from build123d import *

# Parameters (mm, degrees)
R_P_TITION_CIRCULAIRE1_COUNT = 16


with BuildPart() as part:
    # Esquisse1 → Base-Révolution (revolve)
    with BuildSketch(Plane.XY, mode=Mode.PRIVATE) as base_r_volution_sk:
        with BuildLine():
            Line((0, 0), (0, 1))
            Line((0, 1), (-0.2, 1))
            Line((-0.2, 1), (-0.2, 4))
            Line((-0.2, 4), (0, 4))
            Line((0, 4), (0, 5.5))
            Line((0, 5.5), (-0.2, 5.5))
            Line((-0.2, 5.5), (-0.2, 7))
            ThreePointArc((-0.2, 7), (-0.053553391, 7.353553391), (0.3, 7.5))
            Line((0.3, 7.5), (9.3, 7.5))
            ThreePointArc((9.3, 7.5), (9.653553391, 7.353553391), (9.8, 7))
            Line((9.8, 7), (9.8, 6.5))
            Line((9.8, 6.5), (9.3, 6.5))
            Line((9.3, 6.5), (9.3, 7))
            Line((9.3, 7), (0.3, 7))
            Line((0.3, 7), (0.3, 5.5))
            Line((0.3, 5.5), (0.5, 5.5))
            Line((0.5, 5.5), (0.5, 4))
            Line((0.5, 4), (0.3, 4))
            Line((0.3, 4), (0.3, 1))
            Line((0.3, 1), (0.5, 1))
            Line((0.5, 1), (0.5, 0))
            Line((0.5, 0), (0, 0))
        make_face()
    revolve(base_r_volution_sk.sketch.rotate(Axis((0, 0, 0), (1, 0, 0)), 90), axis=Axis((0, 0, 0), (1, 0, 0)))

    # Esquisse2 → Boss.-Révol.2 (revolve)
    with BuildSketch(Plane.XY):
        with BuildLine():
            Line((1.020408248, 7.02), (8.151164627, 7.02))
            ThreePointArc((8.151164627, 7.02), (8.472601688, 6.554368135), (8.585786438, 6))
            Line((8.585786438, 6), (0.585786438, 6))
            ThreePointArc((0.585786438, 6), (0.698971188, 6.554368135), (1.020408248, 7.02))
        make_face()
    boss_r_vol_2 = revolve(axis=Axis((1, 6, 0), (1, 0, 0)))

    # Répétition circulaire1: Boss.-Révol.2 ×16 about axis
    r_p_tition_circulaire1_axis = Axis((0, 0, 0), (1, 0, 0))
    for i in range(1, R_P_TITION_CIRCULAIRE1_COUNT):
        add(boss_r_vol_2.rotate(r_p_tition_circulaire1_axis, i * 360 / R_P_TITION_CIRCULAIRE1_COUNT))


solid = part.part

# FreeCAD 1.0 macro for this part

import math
import FreeCAD as App
import Part
import Sketcher
Q = App.Units.Quantity

doc = App.newDocument("Part")
body = doc.addObject("PartDesign::Body", "Body")

# Sketch on XY plane
sketch1 = body.newObject("Sketcher::SketchObject", "Sketch")
sketch1.AttachmentSupport = (doc.getObject("XY_Plane"), [""])
sketch1.MapMode = "FlatFace"
sketch1.addGeometry(Part.LineSegment(App.Vector(0, 1, 0), App.Vector(0, 0, 0)), False)
sketch1.addGeometry(Part.LineSegment(App.Vector(0, 0, 0), App.Vector(0.5, 0, 0)), False)
sketch1.addGeometry(Part.LineSegment(App.Vector(0.5, 0, 0), App.Vector(0.5, 1, 0)), False)
sketch1.addGeometry(Part.LineSegment(App.Vector(0.5, 1, 0), App.Vector(0.3, 1, 0)), False)
sketch1.addGeometry(Part.LineSegment(App.Vector(0.3, 1, 0), App.Vector(0.3, 4, 0)), False)
sketch1.addGeometry(Part.LineSegment(App.Vector(0.3, 4, 0), App.Vector(0.5, 4, 0)), False)
sketch1.addGeometry(Part.LineSegment(App.Vector(0.5, 4, 0), App.Vector(0.5, 5.5, 0)), False)
sketch1.addGeometry(Part.LineSegment(App.Vector(0.5, 5.5, 0), App.Vector(0.3, 5.5, 0)), False)
sketch1.addGeometry(Part.LineSegment(App.Vector(0.3, 5.5, 0), App.Vector(0.3, 7, 0)), False)
sketch1.addGeometry(Part.LineSegment(App.Vector(0.3, 7, 0), App.Vector(9.3, 7, 0)), False)
sketch1.addGeometry(Part.LineSegment(App.Vector(9.3, 7, 0), App.Vector(9.3, 6.5, 0)), False)
sketch1.addGeometry(Part.LineSegment(App.Vector(9.3, 6.5, 0), App.Vector(9.8, 6.5, 0)), False)
sketch1.addGeometry(Part.LineSegment(App.Vector(9.8, 6.5, 0), App.Vector(9.8, 7, 0)), False)
sketch1.addGeometry(Part.ArcOfCircle(Part.Circle(App.Vector(9.3, 7, 0), App.Vector(0, 0, 1), 0.5), math.radians(0), math.radians(90)), False)
sketch1.addGeometry(Part.LineSegment(App.Vector(9.3, 7.5, 0), App.Vector(0.3, 7.5, 0)), False)
sketch1.addGeometry(Part.ArcOfCircle(Part.Circle(App.Vector(0.3, 7, 0), App.Vector(0, 0, 1), 0.5), math.radians(90), math.radians(180)), False)
sketch1.addGeometry(Part.LineSegment(App.Vector(-0.2, 7, 0), App.Vector(-0.2, 5.5, 0)), False)
sketch1.addGeometry(Part.LineSegment(App.Vector(-0.2, 5.5, 0), App.Vector(0, 5.5, 0)), False)
sketch1.addGeometry(Part.LineSegment(App.Vector(0, 5.5, 0), App.Vector(0, 4, 0)), False)
sketch1.addGeometry(Part.LineSegment(App.Vector(0, 4, 0), App.Vector(-0.2, 4, 0)), False)
sketch1.addGeometry(Part.LineSegment(App.Vector(-0.2, 4, 0), App.Vector(-0.2, 1, 0)), False)
sketch1.addGeometry(Part.LineSegment(App.Vector(-0.2, 1, 0), App.Vector(0, 1, 0)), False)
sketch1.addConstraint(Sketcher.Constraint("Coincident", 0, 2, 1, 1))
sketch1.addConstraint(Sketcher.Constraint("Coincident", 1, 2, 2, 1))
sketch1.addConstraint(Sketcher.Constraint("Coincident", 2, 2, 3, 1))
sketch1.addConstraint(Sketcher.Constraint("Coincident", 3, 2, 4, 1))
sketch1.addConstraint(Sketcher.Constraint("Coincident", 4, 2, 5, 1))
sketch1.addConstraint(Sketcher.Constraint("Coincident", 5, 2, 6, 1))
sketch1.addConstraint(Sketcher.Constraint("Coincident", 6, 2, 7, 1))
sketch1.addConstraint(Sketcher.Constraint("Coincident", 7, 2, 8, 1))
sketch1.addConstraint(Sketcher.Constraint("Coincident", 8, 2, 9, 1))
sketch1.addConstraint(Sketcher.Constraint("Coincident", 9, 2, 10, 1))
sketch1.addConstraint(Sketcher.Constraint("Coincident", 10, 2, 11, 1))
sketch1.addConstraint(Sketcher.Constraint("Coincident", 11, 2, 12, 1))
sketch1.addConstraint(Sketcher.Constraint("Tangent", 12, 2, 13, 1))
sketch1.addConstraint(Sketcher.Constraint("Tangent", 13, 2, 14, 1))
sketch1.addConstraint(Sketcher.Constraint("Tangent", 14, 2, 15, 1))
sketch1.addConstraint(Sketcher.Constraint("Tangent", 15, 2, 16, 1))
sketch1.addConstraint(Sketcher.Constraint("Coincident", 16, 2, 17, 1))
sketch1.addConstraint(Sketcher.Constraint("Coincident", 17, 2, 18, 1))
sketch1.addConstraint(Sketcher.Constraint("Coincident", 18, 2, 19, 1))
sketch1.addConstraint(Sketcher.Constraint("Coincident", 19, 2, 20, 1))
sketch1.addConstraint(Sketcher.Constraint("Coincident", 20, 2, 21, 1))
sketch1.addConstraint(Sketcher.Constraint("Coincident", 21, 2, 0, 1))
sketch1.addConstraint(Sketcher.Constraint("Vertical", 0))
sketch1.addConstraint(Sketcher.Constraint("Horizontal", 1))
sketch1.addConstraint(Sketcher.Constraint("Vertical", 2))
sketch1.addConstraint(Sketcher.Constraint("Horizontal", 3))
sketch1.addConstraint(Sketcher.Constraint("Vertical", 4))
sketch1.addConstraint(Sketcher.Constraint("Horizontal", 5))
sketch1.addConstraint(Sketcher.Constraint("Vertical", 6))
sketch1.addConstraint(Sketcher.Constraint("Horizontal", 7))
sketch1.addConstraint(Sketcher.Constraint("Vertical", 8))
sketch1.addConstraint(Sketcher.Constraint("Horizontal", 9))
sketch1.addConstraint(Sketcher.Constraint("Vertical", 10))
sketch1.addConstraint(Sketcher.Constraint("Horizontal", 11))
sketch1.addConstraint(Sketcher.Constraint("Vertical", 12))
sketch1.addConstraint(Sketcher.Constraint("Horizontal", 14))
sketch1.addConstraint(Sketcher.Constraint("Vertical", 16))
sketch1.addConstraint(Sketcher.Constraint("Horizontal", 17))
sketch1.addConstraint(Sketcher.Constraint("Vertical", 18))
sketch1.addConstraint(Sketcher.Constraint("Horizontal", 19))
sketch1.addConstraint(Sketcher.Constraint("Vertical", 20))
sketch1.addConstraint(Sketcher.Constraint("Horizontal", 21))
sketch1.addConstraint(Sketcher.Constraint("Coincident", 0, 2, -1, 1))
sketch1.addConstraint(Sketcher.Constraint("Coincident", 8, 2, 15, 3))
sketch1.addConstraint(Sketcher.Constraint("Coincident", 9, 2, 13, 3))
sketch1.addConstraint(Sketcher.Constraint("PointOnObject", 17, 2, -2))
sketch1.addConstraint(Sketcher.Constraint("Horizontal", 7, 2, 16, 2))
sketch1.addConstraint(Sketcher.Constraint("Horizontal", 5, 2, 18, 2))
sketch1.addConstraint(Sketcher.Constraint("Horizontal", 3, 2, 20, 2))
sketch1.addConstraint(Sketcher.Constraint("Vertical", 15, 3, 3, 2))
sketch1.addConstraint(Sketcher.Constraint("Vertical", 2, 2, 5, 2))
sketch1.addConstraint(Sketcher.Constraint("Vertical", 16, 2, 19, 2))
sketch1.addConstraint(Sketcher.Constraint("Equal", 1, 11))
sketch1.addConstraint(Sketcher.Constraint("Equal", 6, 8))
sketch1.addConstraint(Sketcher.Constraint("Equal", 11, 10))
sketch1.addConstraint(Sketcher.Constraint("Radius", 13, Q("0.5 mm")))
sketch1.addConstraint(Sketcher.Constraint("DistanceX", 9, 1, 9, 2, Q("9 mm")))
sketch1.addConstraint(Sketcher.Constraint("DistanceY", 0, 2, 0, 1, Q("1 mm")))
sketch1.addConstraint(Sketcher.Constraint("DistanceY", 4, 1, 4, 2, Q("3 mm")))
sketch1.addConstraint(Sketcher.Constraint("DistanceX", 3, 2, 3, 1, Q("0.2 mm")))
sketch1.addConstraint(Sketcher.Constraint("DistanceY", 6, 1, 6, 2, Q("1.5 mm")))
revolution = body.newObject("PartDesign::Revolution", "Revolution")
revolution.Profile = sketch1
revolution.ReferenceAxis = (sketch1, ["H_Axis"])
revolution.Angle = 360

# Sketch on XY plane
sketch2 = body.newObject("Sketcher::SketchObject", "Sketch001")
sketch2.AttachmentSupport = (doc.getObject("XY_Plane"), [""])
sketch2.MapMode = "FlatFace"
sketch2.addGeometry(Part.LineSegment(App.Vector(8.2, 7, 0), App.Vector(1, 7, 0)), False)
sketch2.addGeometry(Part.ArcOfCircle(Part.Circle(App.Vector(2, 6, 0), App.Vector(0, 0, 1), 1.4), math.radians(134), math.radians(180)), False)
sketch2.addGeometry(Part.LineSegment(App.Vector(0.6, 6, 0), App.Vector(8.6, 6, 0)), False)
sketch2.addGeometry(Part.ArcOfCircle(Part.Circle(App.Vector(7.2, 6, 0), App.Vector(0, 0, 1), 1.4), math.radians(0), math.radians(46)), False)
sketch2.addGeometry(Part.LineSegment(App.Vector(0.6, 6, 0), App.Vector(8.6, 6, 0)), True)  # axis
sketch2.addConstraint(Sketcher.Constraint("Coincident", 0, 2, 1, 1))
sketch2.addConstraint(Sketcher.Constraint("Coincident", 1, 2, 2, 1))
sketch2.addConstraint(Sketcher.Constraint("Coincident", 2, 2, 3, 1))
sketch2.addConstraint(Sketcher.Constraint("Coincident", 3, 2, 0, 1))
sketch2.addConstraint(Sketcher.Constraint("Horizontal", 0))
sketch2.addConstraint(Sketcher.Constraint("Horizontal", 2))
sketch2.addConstraint(Sketcher.Constraint("Horizontal", 4))
sketch2.addConstraint(Sketcher.Constraint("Coincident", 4, 1, 1, 2))
sketch2.addConstraint(Sketcher.Constraint("Equal", 1, 3))
sketch2.addConstraint(Sketcher.Constraint("Horizontal", 1, 3, 3, 3))
sketch2.addConstraint(Sketcher.Constraint("Horizontal", 3, 3, 1, 2))
sketch2.addConstraint(Sketcher.Constraint("Equal", 2, 4))
sketch2.addConstraint(Sketcher.Constraint("DistanceX", 2, 1, 2, 2, Q("8 mm")))
sketch2.addConstraint(Sketcher.Constraint("DistanceX", -1, 1, 1, 3, Q("2 mm")))
sketch2.addConstraint(Sketcher.Constraint("DistanceY", -1, 1, 1, 3, Q("6 mm")))
sketch2.addConstraint(Sketcher.Constraint("DistanceY", -1, 1, 0, 2, Q("7.02 mm")))
sketch2.addConstraint(Sketcher.Constraint("Radius", 1, Q("1.414214 mm")))
revolution2 = body.newObject("PartDesign::Revolution", "Revolution001")
revolution2.Profile = sketch2
revolution2.ReferenceAxis = (sketch2, ["Axis0"])
revolution2.Angle = 360
doc.recompute()

polarpattern = body.newObject("PartDesign::PolarPattern", "PolarPattern")
polarpattern.Originals = [revolution2]
polarpattern.Axis = (doc.getObject("X_Axis"), [""])
polarpattern.Angle = 360
polarpattern.Occurrences = 16
body.Tip = polarpattern

doc.recompute()
